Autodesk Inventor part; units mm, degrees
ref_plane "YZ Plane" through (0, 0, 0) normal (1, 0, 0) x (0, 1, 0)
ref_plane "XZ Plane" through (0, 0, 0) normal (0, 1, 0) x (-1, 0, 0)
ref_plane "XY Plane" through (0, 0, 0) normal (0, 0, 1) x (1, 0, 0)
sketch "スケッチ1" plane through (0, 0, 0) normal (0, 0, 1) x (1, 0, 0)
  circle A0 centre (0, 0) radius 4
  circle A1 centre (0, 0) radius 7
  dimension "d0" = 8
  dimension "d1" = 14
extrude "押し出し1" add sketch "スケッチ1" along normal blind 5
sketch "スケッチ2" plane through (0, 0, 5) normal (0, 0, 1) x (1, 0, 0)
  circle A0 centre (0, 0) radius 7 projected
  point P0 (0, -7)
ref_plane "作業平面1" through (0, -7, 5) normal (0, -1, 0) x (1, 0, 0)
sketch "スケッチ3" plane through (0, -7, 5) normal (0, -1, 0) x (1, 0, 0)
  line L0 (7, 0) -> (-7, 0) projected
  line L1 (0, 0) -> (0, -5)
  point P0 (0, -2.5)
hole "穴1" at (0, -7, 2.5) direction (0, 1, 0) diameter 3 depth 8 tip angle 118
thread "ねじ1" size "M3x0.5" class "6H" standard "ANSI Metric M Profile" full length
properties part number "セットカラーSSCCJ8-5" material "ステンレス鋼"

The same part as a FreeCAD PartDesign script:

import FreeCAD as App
import Part
import Sketcher

V = App.Vector
Q = App.Units.Quantity

doc = App.newDocument("Part")
params = doc.addObject("Spreadsheet::Sheet", "Params")
for row, (alias, value) in enumerate([
    ("sketch1_diameter", "14 mm"),
    ("sketch1_diameter2", "8 mm"),
    ("pad1_length", "5 mm"),
    ("sketch2_diameter", "3 mm"),
    ("hole_diameter", "3 mm"),
    ("hole_depth", "8 mm"),
], start=1):
    params.set(f"A{row}", alias)
    params.set(f"B{row}", "=" + value)
    params.setAlias(f"B{row}", alias)

body = doc.addObject("PartDesign::Body", "Body")

# Sketch on XY plane
sketch1 = doc.addObject("Sketcher::SketchObject", "Sketch")
body.addObject(sketch1)
sketch1.AttachmentSupport = (doc.XY_Plane, [""])
sketch1.MapMode = "FlatFace"
sketch1.addGeometry(Part.Circle(V(0, 0, 0), V(0, 0, 1), 7), False)
sketch1.addGeometry(Part.Circle(V(0, 0, 0), V(0, 0, 1), 4), False)
sketch1.addConstraint(Sketcher.Constraint("Coincident", 0, 3, -1, 1))
sketch1.addConstraint(Sketcher.Constraint("Coincident", 1, 3, -1, 1))
sketch1.addConstraint(Sketcher.Constraint("Diameter", 0, Q("14 mm")))
sketch1.addConstraint(Sketcher.Constraint("Diameter", 1, Q("8 mm")))
sketch1.setExpression("Constraints[2]", "Params.sketch1_diameter")
sketch1.setExpression("Constraints[3]", "Params.sketch1_diameter2")
pad1 = doc.addObject("PartDesign::Pad", "Pad")
body.addObject(pad1)
pad1.Profile = sketch1
pad1.setExpression("Length", "Params.pad1_length")

# Sketch on XZ plane
sketch2 = doc.addObject("Sketcher::SketchObject", "Sketch001")
body.addObject(sketch2)
sketch2.AttachmentSupport = (doc.XZ_Plane, [""])
sketch2.MapMode = "FlatFace"
sketch2.AttachmentOffset = App.Placement(V(0, 0, 7), App.Rotation())
sketch2.addGeometry(Part.Circle(V(0, 2.5, 0), V(0, 0, 1), 1.5), False)
sketch2.addConstraint(Sketcher.Constraint("PointOnObject", 0, 3, -2))
sketch2.addConstraint(Sketcher.Constraint("Diameter", 0, Q("3 mm")))
sketch2.addConstraint(Sketcher.Constraint("DistanceY", -1, 1, 0, 3, Q("2.5 mm")))
sketch2.setExpression("Constraints[1]", "Params.sketch2_diameter")
doc.recompute()
hole = doc.addObject("PartDesign::Hole", "Hole")
body.addObject(hole)
hole.Profile = sketch2
hole.ThreadType = "None"
hole.setExpression("Diameter", "Params.hole_diameter")
hole.DepthType = "Dimension"
hole.setExpression("Depth", "Params.hole_depth")
hole.DrillPoint = "Angled"
hole.DrillPointAngle = 118

doc.recompute()
